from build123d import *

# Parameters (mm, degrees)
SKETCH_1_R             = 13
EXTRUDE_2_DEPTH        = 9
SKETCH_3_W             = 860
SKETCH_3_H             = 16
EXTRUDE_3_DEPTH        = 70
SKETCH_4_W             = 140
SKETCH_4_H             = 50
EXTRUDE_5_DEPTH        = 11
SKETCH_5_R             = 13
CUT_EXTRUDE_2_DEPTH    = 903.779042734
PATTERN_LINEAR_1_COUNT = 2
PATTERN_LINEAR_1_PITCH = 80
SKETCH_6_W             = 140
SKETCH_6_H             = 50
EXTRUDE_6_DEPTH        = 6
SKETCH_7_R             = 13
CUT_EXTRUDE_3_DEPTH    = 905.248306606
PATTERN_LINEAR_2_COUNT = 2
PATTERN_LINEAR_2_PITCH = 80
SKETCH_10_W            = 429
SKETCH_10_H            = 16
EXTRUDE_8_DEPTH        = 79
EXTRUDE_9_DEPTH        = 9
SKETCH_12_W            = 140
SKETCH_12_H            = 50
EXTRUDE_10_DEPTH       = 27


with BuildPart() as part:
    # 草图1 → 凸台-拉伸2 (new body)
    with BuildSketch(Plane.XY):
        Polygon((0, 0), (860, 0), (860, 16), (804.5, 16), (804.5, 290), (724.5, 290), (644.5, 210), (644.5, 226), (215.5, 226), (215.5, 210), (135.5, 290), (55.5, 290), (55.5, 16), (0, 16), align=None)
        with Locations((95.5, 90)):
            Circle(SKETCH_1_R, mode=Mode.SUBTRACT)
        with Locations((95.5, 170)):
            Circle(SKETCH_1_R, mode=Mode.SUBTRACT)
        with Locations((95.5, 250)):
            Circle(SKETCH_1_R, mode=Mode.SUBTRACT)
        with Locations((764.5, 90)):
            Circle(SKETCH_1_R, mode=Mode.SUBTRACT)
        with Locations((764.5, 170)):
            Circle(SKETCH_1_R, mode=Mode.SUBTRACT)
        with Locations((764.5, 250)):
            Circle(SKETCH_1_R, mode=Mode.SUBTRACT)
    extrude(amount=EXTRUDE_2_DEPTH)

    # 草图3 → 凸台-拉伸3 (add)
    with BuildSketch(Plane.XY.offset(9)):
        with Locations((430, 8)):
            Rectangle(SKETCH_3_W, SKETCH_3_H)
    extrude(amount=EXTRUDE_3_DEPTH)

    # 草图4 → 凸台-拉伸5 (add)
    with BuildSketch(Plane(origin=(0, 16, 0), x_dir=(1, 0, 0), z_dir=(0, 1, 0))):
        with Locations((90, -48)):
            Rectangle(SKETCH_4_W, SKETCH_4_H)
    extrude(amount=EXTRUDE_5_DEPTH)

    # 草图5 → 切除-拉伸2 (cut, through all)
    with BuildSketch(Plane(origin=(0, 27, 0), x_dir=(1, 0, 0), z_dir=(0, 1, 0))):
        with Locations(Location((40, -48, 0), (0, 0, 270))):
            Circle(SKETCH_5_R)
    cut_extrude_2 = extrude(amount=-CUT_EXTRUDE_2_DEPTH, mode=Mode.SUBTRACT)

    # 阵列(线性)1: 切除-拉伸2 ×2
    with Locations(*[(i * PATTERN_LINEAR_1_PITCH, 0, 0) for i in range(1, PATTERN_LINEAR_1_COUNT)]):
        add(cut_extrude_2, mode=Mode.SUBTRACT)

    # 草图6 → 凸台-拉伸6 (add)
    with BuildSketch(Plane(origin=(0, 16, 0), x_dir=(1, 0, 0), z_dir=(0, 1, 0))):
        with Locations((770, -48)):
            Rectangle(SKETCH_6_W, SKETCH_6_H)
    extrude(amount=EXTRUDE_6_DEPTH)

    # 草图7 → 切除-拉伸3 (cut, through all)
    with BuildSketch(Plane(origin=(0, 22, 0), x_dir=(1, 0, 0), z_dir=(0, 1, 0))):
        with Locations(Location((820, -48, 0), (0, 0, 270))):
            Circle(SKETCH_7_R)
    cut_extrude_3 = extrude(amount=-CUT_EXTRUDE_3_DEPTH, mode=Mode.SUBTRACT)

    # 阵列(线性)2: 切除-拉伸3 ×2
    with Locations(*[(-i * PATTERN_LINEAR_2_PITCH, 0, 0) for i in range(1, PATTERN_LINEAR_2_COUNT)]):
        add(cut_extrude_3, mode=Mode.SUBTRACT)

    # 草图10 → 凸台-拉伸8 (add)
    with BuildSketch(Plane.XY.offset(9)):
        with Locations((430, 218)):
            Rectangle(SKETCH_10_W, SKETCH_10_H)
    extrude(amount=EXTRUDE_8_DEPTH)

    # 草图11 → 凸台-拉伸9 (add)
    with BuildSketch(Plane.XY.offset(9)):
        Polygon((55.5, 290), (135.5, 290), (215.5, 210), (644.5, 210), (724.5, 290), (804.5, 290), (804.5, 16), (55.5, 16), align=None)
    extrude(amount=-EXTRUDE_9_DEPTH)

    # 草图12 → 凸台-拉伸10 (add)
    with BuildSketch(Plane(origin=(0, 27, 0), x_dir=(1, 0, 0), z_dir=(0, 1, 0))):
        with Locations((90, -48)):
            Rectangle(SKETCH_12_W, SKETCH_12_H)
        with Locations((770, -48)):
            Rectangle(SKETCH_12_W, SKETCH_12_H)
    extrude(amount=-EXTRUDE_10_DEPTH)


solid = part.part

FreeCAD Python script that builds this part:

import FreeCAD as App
import Part
import Sketcher

V = App.Vector

doc = App.newDocument("Part")
body = doc.addObject("PartDesign::Body", "Body")

# Sketch on XY plane
sketch1 = body.newObject("Sketcher::SketchObject", "Sketch")
sketch1.AttachmentSupport = (doc.getObject("XY_Plane"), [""])
sketch1.MapMode = "FlatFace"
sketch1.addGeometry(Part.LineSegment(V(0, 0, 0), V(860, 0, 0)), False)
sketch1.addGeometry(Part.LineSegment(V(860, 0, 0), V(860, 16, 0)), False)
sketch1.addGeometry(Part.LineSegment(V(860, 16, 0), V(804.5, 16, 0)), False)
sketch1.addGeometry(Part.LineSegment(V(804.5, 16, 0), V(804.5, 290, 0)), False)
sketch1.addGeometry(Part.LineSegment(V(804.5, 290, 0), V(724.5, 290, 0)), False)
sketch1.addGeometry(Part.LineSegment(V(724.5, 290, 0), V(644.5, 210, 0)), False)
sketch1.addGeometry(Part.LineSegment(V(644.5, 210, 0), V(644.5, 226, 0)), False)
sketch1.addGeometry(Part.LineSegment(V(644.5, 226, 0), V(215.5, 226, 0)), False)
sketch1.addGeometry(Part.LineSegment(V(215.5, 226, 0), V(215.5, 210, 0)), False)
sketch1.addGeometry(Part.LineSegment(V(215.5, 210, 0), V(135.5, 290, 0)), False)
sketch1.addGeometry(Part.LineSegment(V(135.5, 290, 0), V(55.5, 290, 0)), False)
sketch1.addGeometry(Part.LineSegment(V(55.5, 290, 0), V(55.5, 16, 0)), False)
sketch1.addGeometry(Part.LineSegment(V(55.5, 16, 0), V(0, 16, 0)), False)
sketch1.addGeometry(Part.LineSegment(V(0, 16, 0), V(0, 0, 0)), False)
sketch1.addGeometry(Part.Circle(V(95.5, 90, 0), V(0, 0, 1), 13), False)
sketch1.addGeometry(Part.Circle(V(764.5, 90, 0), V(0, 0, 1), 13), False)
sketch1.addGeometry(Part.Circle(V(95.5, 170, 0), V(0, 0, 1), 13), False)
sketch1.addGeometry(Part.Circle(V(95.5, 250, 0), V(0, 0, 1), 13), False)
sketch1.addGeometry(Part.Circle(V(764.5, 170, 0), V(0, 0, 1), 13), False)
sketch1.addGeometry(Part.Circle(V(764.5, 250, 0), V(0, 0, 1), 13), False)
sketch1.addConstraint(Sketcher.Constraint("Coincident", 0, 2, 1, 1))
sketch1.addConstraint(Sketcher.Constraint("Coincident", 1, 2, 2, 1))
sketch1.addConstraint(Sketcher.Constraint("Coincident", 2, 2, 3, 1))
sketch1.addConstraint(Sketcher.Constraint("Coincident", 3, 2, 4, 1))
sketch1.addConstraint(Sketcher.Constraint("Coincident", 4, 2, 5, 1))
sketch1.addConstraint(Sketcher.Constraint("Coincident", 5, 2, 6, 1))
sketch1.addConstraint(Sketcher.Constraint("Coincident", 6, 2, 7, 1))
sketch1.addConstraint(Sketcher.Constraint("Coincident", 7, 2, 8, 1))
sketch1.addConstraint(Sketcher.Constraint("Coincident", 8, 2, 9, 1))
sketch1.addConstraint(Sketcher.Constraint("Coincident", 9, 2, 10, 1))
sketch1.addConstraint(Sketcher.Constraint("Coincident", 10, 2, 11, 1))
sketch1.addConstraint(Sketcher.Constraint("Coincident", 11, 2, 12, 1))
sketch1.addConstraint(Sketcher.Constraint("Coincident", 12, 2, 13, 1))
sketch1.addConstraint(Sketcher.Constraint("Coincident", 13, 2, 0, 1))
sketch1.addConstraint(Sketcher.Constraint("Horizontal", 0))
sketch1.addConstraint(Sketcher.Constraint("Vertical", 1))
sketch1.addConstraint(Sketcher.Constraint("Horizontal", 2))
sketch1.addConstraint(Sketcher.Constraint("Vertical", 3))
sketch1.addConstraint(Sketcher.Constraint("Horizontal", 4))
sketch1.addConstraint(Sketcher.Constraint("Vertical", 6))
sketch1.addConstraint(Sketcher.Constraint("Horizontal", 7))
sketch1.addConstraint(Sketcher.Constraint("Vertical", 8))
sketch1.addConstraint(Sketcher.Constraint("Horizontal", 10))
sketch1.addConstraint(Sketcher.Constraint("Vertical", 11))
sketch1.addConstraint(Sketcher.Constraint("Horizontal", 12))
sketch1.addConstraint(Sketcher.Constraint("Vertical", 13))
sketch1.addConstraint(Sketcher.Constraint("Coincident", 13, 2, -1, 1))
sketch1.addConstraint(Sketcher.Constraint("Equal", 14, 15))
sketch1.addConstraint(Sketcher.Constraint("Equal", 15, 16))
sketch1.addConstraint(Sketcher.Constraint("Equal", 16, 17))
sketch1.addConstraint(Sketcher.Constraint("Equal", 17, 18))
sketch1.addConstraint(Sketcher.Constraint("Equal", 18, 19))
sketch1.addConstraint(Sketcher.Constraint("Perpendicular", 5, 9))
sketch1.addConstraint(Sketcher.Constraint("Horizontal", 14, 3, 15, 3))
sketch1.addConstraint(Sketcher.Constraint("Horizontal", 16, 3, 18, 3))
sketch1.addConstraint(Sketcher.Constraint("Horizontal", 17, 3, 19, 3))
sketch1.addConstraint(Sketcher.Constraint("Horizontal", 5, 2, 8, 2))
sketch1.addConstraint(Sketcher.Constraint("Horizontal", 4, 2, 9, 2))
sketch1.addConstraint(Sketcher.Constraint("Horizontal", 2, 2, 11, 2))
sketch1.addConstraint(Sketcher.Constraint("Vertical", 14, 3, 16, 3))
sketch1.addConstraint(Sketcher.Constraint("Vertical", 16, 3, 17, 3))
sketch1.addConstraint(Sketcher.Constraint("Vertical", 15, 3, 18, 3))
sketch1.addConstraint(Sketcher.Constraint("Vertical", 18, 3, 19, 3))
sketch1.addConstraint(Sketcher.Constraint("Equal", 4, 10))
sketch1.addConstraint(Sketcher.Constraint("Equal", 2, 12))
sketch1.addConstraint(Sketcher.Constraint("Equal", 1, 6))
sketch1.addConstraint(Sketcher.Constraint("Equal", 5, 9))
sketch1.addConstraint(Sketcher.Constraint("Diameter", 14, 26.0))
sketch1.addConstraint(Sketcher.Constraint("DistanceX", 0, 1, 0, 2, 860.0))
sketch1.addConstraint(Sketcher.Constraint("DistanceX", 4, 2, 4, 1, 80.0))
sketch1.addConstraint(Sketcher.Constraint("DistanceX", 7, 2, 7, 1, 429.0))
sketch1.addConstraint(Sketcher.Constraint("DistanceY", 1, 1, 1, 2, 16.0))
sketch1.addConstraint(Sketcher.Constraint("DistanceY", 3, 1, 3, 2, 274.0))
sketch1.addConstraint(Sketcher.Constraint("DistanceX", 2, 2, 2, 1, 55.5))
sketch1.addConstraint(Sketcher.Constraint("DistanceY", -1, 1, 14, 3, 90.0))
sketch1.addConstraint(Sketcher.Constraint("DistanceY", -1, 1, 16, 3, 170.0))
sketch1.addConstraint(Sketcher.Constraint("DistanceY", -1, 1, 17, 3, 250.0))
sketch1.addConstraint(Sketcher.Constraint("DistanceX", 14, 3, 15, 3, 669.0))
sketch1.addConstraint(Sketcher.Constraint("DistanceX", 15, 3, 2, 2, 40.0))
pad1 = body.newObject("PartDesign::Pad", "Pad")
pad1.Profile = sketch1
pad1.Length = 9

# Sketch on XY plane
sketch2 = body.newObject("Sketcher::SketchObject", "Sketch001")
sketch2.AttachmentSupport = (doc.getObject("XY_Plane"), [""])
sketch2.MapMode = "FlatFace"
sketch2.AttachmentOffset = App.Placement(V(0, 0, 9), App.Rotation())
sketch2.addGeometry(Part.LineSegment(V(0, 16, 0), V(0, 0, 0)), False)
sketch2.addGeometry(Part.LineSegment(V(0, 0, 0), V(860, 0, 0)), False)
sketch2.addGeometry(Part.LineSegment(V(860, 0, 0), V(860, 16, 0)), False)
sketch2.addGeometry(Part.LineSegment(V(860, 16, 0), V(0, 16, 0)), False)
sketch2.addConstraint(Sketcher.Constraint("Coincident", 0, 2, 1, 1))
sketch2.addConstraint(Sketcher.Constraint("Coincident", 1, 2, 2, 1))
sketch2.addConstraint(Sketcher.Constraint("Coincident", 2, 2, 3, 1))
sketch2.addConstraint(Sketcher.Constraint("Coincident", 3, 2, 0, 1))
sketch2.addConstraint(Sketcher.Constraint("Vertical", 0))
sketch2.addConstraint(Sketcher.Constraint("Horizontal", 1))
sketch2.addConstraint(Sketcher.Constraint("Vertical", 2))
sketch2.addConstraint(Sketcher.Constraint("Horizontal", 3))
sketch2.addConstraint(Sketcher.Constraint("Coincident", 0, 2, -1, 1))
sketch2.addConstraint(Sketcher.Constraint("DistanceX", 1, 1, 1, 2, 860.0))
sketch2.addConstraint(Sketcher.Constraint("DistanceY", 0, 2, 0, 1, 16.0))
pad2 = body.newObject("PartDesign::Pad", "Pad001")
pad2.Profile = sketch2
pad2.Length = 70

# Sketch on XZ plane
sketch3 = body.newObject("Sketcher::SketchObject", "Sketch002")
sketch3.AttachmentSupport = (doc.getObject("XZ_Plane"), [""])
sketch3.MapMode = "FlatFace"
sketch3.AttachmentOffset = App.Placement(V(0, 0, -16), App.Rotation())
sketch3.addGeometry(Part.LineSegment(V(20, 23, 0), V(20, 73, 0)), False)
sketch3.addGeometry(Part.LineSegment(V(20, 73, 0), V(160, 73, 0)), False)
sketch3.addGeometry(Part.LineSegment(V(160, 73, 0), V(160, 23, 0)), False)
sketch3.addGeometry(Part.LineSegment(V(160, 23, 0), V(20, 23, 0)), False)
sketch3.addConstraint(Sketcher.Constraint("Coincident", 0, 2, 1, 1))
sketch3.addConstraint(Sketcher.Constraint("Coincident", 1, 2, 2, 1))
sketch3.addConstraint(Sketcher.Constraint("Coincident", 2, 2, 3, 1))
sketch3.addConstraint(Sketcher.Constraint("Coincident", 3, 2, 0, 1))
sketch3.addConstraint(Sketcher.Constraint("Vertical", 0))
sketch3.addConstraint(Sketcher.Constraint("Horizontal", 1))
sketch3.addConstraint(Sketcher.Constraint("Vertical", 2))
sketch3.addConstraint(Sketcher.Constraint("Horizontal", 3))
sketch3.addConstraint(Sketcher.Constraint("DistanceX", 1, 1, 1, 2, 140.0))
sketch3.addConstraint(Sketcher.Constraint("DistanceY", 0, 1, 0, 2, 50.0))
sketch3.addConstraint(Sketcher.Constraint("DistanceX", -1, 1, 0, 2, 20.0))
sketch3.addConstraint(Sketcher.Constraint("DistanceY", -1, 1, 0, 2, 73.0))
pad3 = body.newObject("PartDesign::Pad", "Pad002")
pad3.Profile = sketch3
pad3.Length = 11
pad3.Reversed = True

# Sketch on XZ plane
sketch4 = body.newObject("Sketcher::SketchObject", "Sketch003")
sketch4.AttachmentSupport = (doc.getObject("XZ_Plane"), [""])
sketch4.MapMode = "FlatFace"
sketch4.AttachmentOffset = App.Placement(V(0, 0, -27), App.Rotation())
sketch4.addGeometry(Part.Circle(V(40, 48, 0), V(0, 0, 1), 13), False)
sketch4.addConstraint(Sketcher.Constraint("Diameter", 0, 26.0))
sketch4.addConstraint(Sketcher.Constraint("DistanceX", -1, 1, 0, 3, 40.0))
sketch4.addConstraint(Sketcher.Constraint("DistanceY", -1, 1, 0, 3, 48.0))
pocket1 = body.newObject("PartDesign::Pocket", "Pocket")
pocket1.Profile = sketch4
pocket1.Type = "ThroughAll"
pocket1.Reversed = True
doc.recompute()

linearpattern = body.newObject("PartDesign::LinearPattern", "LinearPattern")
linearpattern.Originals = [pocket1]
linearpattern.Direction = (doc.getObject("X_Axis"), [""])
linearpattern.Mode = "offset"
linearpattern.Offset = 80
linearpattern.Occurrences = 2
body.Tip = linearpattern

# Sketch on XZ plane
sketch5 = body.newObject("Sketcher::SketchObject", "Sketch004")
sketch5.AttachmentSupport = (doc.getObject("XZ_Plane"), [""])
sketch5.MapMode = "FlatFace"
sketch5.AttachmentOffset = App.Placement(V(0, 0, -16), App.Rotation())
sketch5.addGeometry(Part.LineSegment(V(700, 23, 0), V(700, 73, 0)), False)
sketch5.addGeometry(Part.LineSegment(V(700, 73, 0), V(840, 73, 0)), False)
sketch5.addGeometry(Part.LineSegment(V(840, 73, 0), V(840, 23, 0)), False)
sketch5.addGeometry(Part.LineSegment(V(840, 23, 0), V(700, 23, 0)), False)
sketch5.addConstraint(Sketcher.Constraint("Coincident", 0, 2, 1, 1))
sketch5.addConstraint(Sketcher.Constraint("Coincident", 1, 2, 2, 1))
sketch5.addConstraint(Sketcher.Constraint("Coincident", 2, 2, 3, 1))
sketch5.addConstraint(Sketcher.Constraint("Coincident", 3, 2, 0, 1))
sketch5.addConstraint(Sketcher.Constraint("Vertical", 0))
sketch5.addConstraint(Sketcher.Constraint("Horizontal", 1))
sketch5.addConstraint(Sketcher.Constraint("Vertical", 2))
sketch5.addConstraint(Sketcher.Constraint("Horizontal", 3))
sketch5.addConstraint(Sketcher.Constraint("DistanceX", 1, 1, 1, 2, 140.0))
sketch5.addConstraint(Sketcher.Constraint("DistanceY", 0, 1, 0, 2, 50.0))
sketch5.addConstraint(Sketcher.Constraint("DistanceX", -1, 1, 0, 2, 700.0))
sketch5.addConstraint(Sketcher.Constraint("DistanceY", -1, 1, 0, 2, 73.0))
pad4 = body.newObject("PartDesign::Pad", "Pad003")
pad4.Profile = sketch5
pad4.Length = 6
pad4.Reversed = True

# Sketch on XZ plane
sketch6 = body.newObject("Sketcher::SketchObject", "Sketch005")
sketch6.AttachmentSupport = (doc.getObject("XZ_Plane"), [""])
sketch6.MapMode = "FlatFace"
sketch6.AttachmentOffset = App.Placement(V(0, 0, -22), App.Rotation())
sketch6.addGeometry(Part.Circle(V(820, 48, 0), V(0, 0, 1), 13), False)
sketch6.addConstraint(Sketcher.Constraint("Diameter", 0, 26.0))
sketch6.addConstraint(Sketcher.Constraint("DistanceX", -1, 1, 0, 3, 820.0))
sketch6.addConstraint(Sketcher.Constraint("DistanceY", -1, 1, 0, 3, 48.0))
pocket2 = body.newObject("PartDesign::Pocket", "Pocket001")
pocket2.Profile = sketch6
pocket2.Type = "ThroughAll"
pocket2.Reversed = True
doc.recompute()

linearpattern2 = body.newObject("PartDesign::LinearPattern", "LinearPattern001")
linearpattern2.Originals = [pocket2]
linearpattern2.Direction = (doc.getObject("X_Axis"), [""])
linearpattern2.Mode = "offset"
linearpattern2.Offset = 80
linearpattern2.Occurrences = 2
linearpattern2.Reversed = True
body.Tip = linearpattern2

# Sketch on XY plane
sketch7 = body.newObject("Sketcher::SketchObject", "Sketch006")
sketch7.AttachmentSupport = (doc.getObject("XY_Plane"), [""])
sketch7.MapMode = "FlatFace"
sketch7.AttachmentOffset = App.Placement(V(0, 0, 9), App.Rotation())
sketch7.addGeometry(Part.LineSegment(V(215.5, 226, 0), V(215.5, 210, 0)), False)
sketch7.addGeometry(Part.LineSegment(V(215.5, 210, 0), V(644.5, 210, 0)), False)
sketch7.addGeometry(Part.LineSegment(V(644.5, 210, 0), V(644.5, 226, 0)), False)
sketch7.addGeometry(Part.LineSegment(V(644.5, 226, 0), V(215.5, 226, 0)), False)
sketch7.addConstraint(Sketcher.Constraint("Coincident", 0, 2, 1, 1))
sketch7.addConstraint(Sketcher.Constraint("Coincident", 1, 2, 2, 1))
sketch7.addConstraint(Sketcher.Constraint("Coincident", 2, 2, 3, 1))
sketch7.addConstraint(Sketcher.Constraint("Coincident", 3, 2, 0, 1))
sketch7.addConstraint(Sketcher.Constraint("Vertical", 0))
sketch7.addConstraint(Sketcher.Constraint("Horizontal", 1))
sketch7.addConstraint(Sketcher.Constraint("Vertical", 2))
sketch7.addConstraint(Sketcher.Constraint("Horizontal", 3))
sketch7.addConstraint(Sketcher.Constraint("DistanceX", 1, 1, 1, 2, 429.0))
sketch7.addConstraint(Sketcher.Constraint("DistanceY", 0, 2, 0, 1, 16.0))
sketch7.addConstraint(Sketcher.Constraint("DistanceY", -1, 1, 0, 2, 210.0))
sketch7.addConstraint(Sketcher.Constraint("DistanceX", -1, 1, 0, 2, 215.5))
pad5 = body.newObject("PartDesign::Pad", "Pad004")
pad5.Profile = sketch7
pad5.Length = 79

# Sketch on XY plane
sketch8 = body.newObject("Sketcher::SketchObject", "Sketch007")
sketch8.AttachmentSupport = (doc.getObject("XY_Plane"), [""])
sketch8.MapMode = "FlatFace"
sketch8.AttachmentOffset = App.Placement(V(0, 0, 9), App.Rotation())
sketch8.addGeometry(Part.LineSegment(V(135.5, 290, 0), V(55.5, 290, 0)), False)
sketch8.addGeometry(Part.LineSegment(V(55.5, 290, 0), V(55.5, 16, 0)), False)
sketch8.addGeometry(Part.LineSegment(V(55.5, 16, 0), V(804.5, 16, 0)), False)
sketch8.addGeometry(Part.LineSegment(V(804.5, 16, 0), V(804.5, 290, 0)), False)
sketch8.addGeometry(Part.LineSegment(V(804.5, 290, 0), V(724.5, 290, 0)), False)
sketch8.addGeometry(Part.LineSegment(V(724.5, 290, 0), V(644.5, 210, 0)), False)
sketch8.addGeometry(Part.LineSegment(V(644.5, 210, 0), V(215.5, 210, 0)), False)
sketch8.addGeometry(Part.LineSegment(V(215.5, 210, 0), V(135.5, 290, 0)), False)
sketch8.addConstraint(Sketcher.Constraint("Coincident", 0, 2, 1, 1))
sketch8.addConstraint(Sketcher.Constraint("Coincident", 1, 2, 2, 1))
sketch8.addConstraint(Sketcher.Constraint("Coincident", 2, 2, 3, 1))
sketch8.addConstraint(Sketcher.Constraint("Coincident", 3, 2, 4, 1))
sketch8.addConstraint(Sketcher.Constraint("Coincident", 4, 2, 5, 1))
sketch8.addConstraint(Sketcher.Constraint("Coincident", 5, 2, 6, 1))
sketch8.addConstraint(Sketcher.Constraint("Coincident", 6, 2, 7, 1))
sketch8.addConstraint(Sketcher.Constraint("Coincident", 7, 2, 0, 1))
sketch8.addConstraint(Sketcher.Constraint("Horizontal", 0))
sketch8.addConstraint(Sketcher.Constraint("Vertical", 1))
sketch8.addConstraint(Sketcher.Constraint("Horizontal", 2))
sketch8.addConstraint(Sketcher.Constraint("Vertical", 3))
sketch8.addConstraint(Sketcher.Constraint("Horizontal", 4))
sketch8.addConstraint(Sketcher.Constraint("Horizontal", 6))
sketch8.addConstraint(Sketcher.Constraint("Perpendicular", 5, 7))
sketch8.addConstraint(Sketcher.Constraint("Horizontal", 0, 2, 3, 2))
sketch8.addConstraint(Sketcher.Constraint("Equal", 0, 4))
sketch8.addConstraint(Sketcher.Constraint("Equal", 5, 7))
sketch8.addConstraint(Sketcher.Constraint("DistanceX", 0, 2, 0, 1, 80.0))
sketch8.addConstraint(Sketcher.Constraint("DistanceX", 2, 1, 2, 2, 749.0))
sketch8.addConstraint(Sketcher.Constraint("DistanceX", 6, 2, 6, 1, 429.0))
sketch8.addConstraint(Sketcher.Constraint("DistanceY", 1, 2, 1, 1, 274.0))
sketch8.addConstraint(Sketcher.Constraint("DistanceY", -1, 1, 0, 2, 290.0))
sketch8.addConstraint(Sketcher.Constraint("DistanceX", -1, 1, 0, 2, 55.5))
pad6 = body.newObject("PartDesign::Pad", "Pad005")
pad6.Profile = sketch8
pad6.Length = 9
pad6.Reversed = True

# Sketch on XZ plane
sketch9 = body.newObject("Sketcher::SketchObject", "Sketch008")
sketch9.AttachmentSupport = (doc.getObject("XZ_Plane"), [""])
sketch9.MapMode = "FlatFace"
sketch9.AttachmentOffset = App.Placement(V(0, 0, -27), App.Rotation())
sketch9.addGeometry(Part.LineSegment(V(20, 23, 0), V(20, 73, 0)), False)
sketch9.addGeometry(Part.LineSegment(V(20, 73, 0), V(160, 73, 0)), False)
sketch9.addGeometry(Part.LineSegment(V(160, 73, 0), V(160, 23, 0)), False)
sketch9.addGeometry(Part.LineSegment(V(160, 23, 0), V(20, 23, 0)), False)
sketch9.addGeometry(Part.LineSegment(V(700, 23, 0), V(700, 73, 0)), False)
sketch9.addGeometry(Part.LineSegment(V(700, 73, 0), V(840, 73, 0)), False)
sketch9.addGeometry(Part.LineSegment(V(840, 73, 0), V(840, 23, 0)), False)
sketch9.addGeometry(Part.LineSegment(V(840, 23, 0), V(700, 23, 0)), False)
sketch9.addConstraint(Sketcher.Constraint("Coincident", 0, 2, 1, 1))
sketch9.addConstraint(Sketcher.Constraint("Coincident", 1, 2, 2, 1))
sketch9.addConstraint(Sketcher.Constraint("Coincident", 2, 2, 3, 1))
sketch9.addConstraint(Sketcher.Constraint("Coincident", 3, 2, 0, 1))
sketch9.addConstraint(Sketcher.Constraint("Coincident", 4, 2, 5, 1))
sketch9.addConstraint(Sketcher.Constraint("Coincident", 5, 2, 6, 1))
sketch9.addConstraint(Sketcher.Constraint("Coincident", 6, 2, 7, 1))
sketch9.addConstraint(Sketcher.Constraint("Coincident", 7, 2, 4, 1))
sketch9.addConstraint(Sketcher.Constraint("Vertical", 0))
sketch9.addConstraint(Sketcher.Constraint("Horizontal", 1))
sketch9.addConstraint(Sketcher.Constraint("Vertical", 2))
sketch9.addConstraint(Sketcher.Constraint("Horizontal", 3))
sketch9.addConstraint(Sketcher.Constraint("Vertical", 4))
sketch9.addConstraint(Sketcher.Constraint("Horizontal", 5))
sketch9.addConstraint(Sketcher.Constraint("Vertical", 6))
sketch9.addConstraint(Sketcher.Constraint("Horizontal", 7))
sketch9.addConstraint(Sketcher.Constraint("Horizontal", 1, 2, 4, 2))
sketch9.addConstraint(Sketcher.Constraint("Horizontal", 3, 2, 6, 2))
sketch9.addConstraint(Sketcher.Constraint("Equal", 3, 5))
sketch9.addConstraint(Sketcher.Constraint("DistanceX", 1, 1, 1, 2, 140.0))
sketch9.addConstraint(Sketcher.Constraint("DistanceY", 0, 1, 0, 2, 50.0))
sketch9.addConstraint(Sketcher.Constraint("DistanceX", -1, 1, 0, 2, 20.0))
sketch9.addConstraint(Sketcher.Constraint("DistanceY", -1, 1, 0, 2, 73.0))
sketch9.addConstraint(Sketcher.Constraint("DistanceX", -1, 1, 4, 2, 700.0))
pad7 = body.newObject("PartDesign::Pad", "Pad006")
pad7.Profile = sketch9
pad7.Length = 27

doc.recompute()
